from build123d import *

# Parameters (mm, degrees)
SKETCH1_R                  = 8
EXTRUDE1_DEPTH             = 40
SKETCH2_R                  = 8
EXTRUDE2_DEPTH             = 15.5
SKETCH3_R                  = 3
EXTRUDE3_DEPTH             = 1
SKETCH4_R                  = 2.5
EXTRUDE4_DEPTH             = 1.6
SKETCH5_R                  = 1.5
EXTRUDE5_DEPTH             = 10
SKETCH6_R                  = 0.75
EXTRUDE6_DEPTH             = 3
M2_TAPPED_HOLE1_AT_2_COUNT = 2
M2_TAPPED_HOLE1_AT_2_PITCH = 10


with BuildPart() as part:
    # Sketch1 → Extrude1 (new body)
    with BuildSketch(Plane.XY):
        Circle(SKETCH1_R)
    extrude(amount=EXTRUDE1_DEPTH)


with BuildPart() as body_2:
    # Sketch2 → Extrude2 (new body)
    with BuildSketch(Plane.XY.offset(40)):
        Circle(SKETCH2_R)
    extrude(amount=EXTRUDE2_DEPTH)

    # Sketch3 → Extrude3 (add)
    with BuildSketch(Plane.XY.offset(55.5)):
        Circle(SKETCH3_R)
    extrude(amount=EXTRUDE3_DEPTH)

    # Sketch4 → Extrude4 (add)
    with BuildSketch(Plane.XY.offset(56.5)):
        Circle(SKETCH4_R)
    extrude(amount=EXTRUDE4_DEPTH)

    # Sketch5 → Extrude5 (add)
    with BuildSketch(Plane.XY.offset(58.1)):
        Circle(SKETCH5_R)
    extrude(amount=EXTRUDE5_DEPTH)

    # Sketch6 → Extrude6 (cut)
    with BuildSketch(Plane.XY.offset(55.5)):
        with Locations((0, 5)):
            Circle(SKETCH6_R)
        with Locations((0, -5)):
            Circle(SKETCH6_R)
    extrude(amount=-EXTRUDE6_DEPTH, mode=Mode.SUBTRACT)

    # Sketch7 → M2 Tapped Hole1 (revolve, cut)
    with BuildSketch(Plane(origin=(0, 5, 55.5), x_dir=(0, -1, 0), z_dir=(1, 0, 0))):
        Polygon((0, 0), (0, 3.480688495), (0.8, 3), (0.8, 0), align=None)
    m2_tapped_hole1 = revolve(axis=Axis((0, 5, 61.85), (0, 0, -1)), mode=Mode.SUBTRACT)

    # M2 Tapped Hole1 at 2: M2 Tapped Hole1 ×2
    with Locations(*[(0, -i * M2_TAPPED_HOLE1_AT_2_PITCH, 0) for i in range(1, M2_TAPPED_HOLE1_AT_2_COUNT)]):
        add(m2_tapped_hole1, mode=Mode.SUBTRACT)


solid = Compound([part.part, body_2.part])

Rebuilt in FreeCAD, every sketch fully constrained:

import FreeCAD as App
import Part
import Sketcher
Q = App.Units.Quantity

doc = App.newDocument("Part")
body = doc.addObject("PartDesign::Body", "Body")

# Sketch on XY plane
sketch1 = body.newObject("Sketcher::SketchObject", "Sketch")
sketch1.AttachmentSupport = (doc.getObject("XY_Plane"), [""])
sketch1.MapMode = "FlatFace"
sketch1.addGeometry(Part.Circle(App.Vector(0, 0, 0), App.Vector(0, 0, 1), 8), False)
sketch1.addConstraint([
    Sketcher.Constraint("Coincident", 0, 3, -1, 1),
    Sketcher.Constraint("Diameter", 0, 16.0),
])
pad1 = body.newObject("PartDesign::Pad", "Pad")
pad1.Profile = sketch1
pad1.Length = 40
body2 = doc.addObject("PartDesign::Body", "Body001")

# Sketch on XY plane
sketch2 = body2.newObject("Sketcher::SketchObject", "Sketch001")
sketch2.AttachmentSupport = (doc.getObject("XY_Plane001"), [""])
sketch2.MapMode = "FlatFace"
sketch2.AttachmentOffset = App.Placement(App.Vector(0, 0, 40), App.Rotation())
sketch2.addGeometry(Part.Circle(App.Vector(0, 0, 0), App.Vector(0, 0, 1), 8), False)
sketch2.addConstraint([
    Sketcher.Constraint("Coincident", 0, 3, -1, 1),
    Sketcher.Constraint("Diameter", 0, 16.0),
])
pad2 = body2.newObject("PartDesign::Pad", "Pad001")
pad2.Profile = sketch2
pad2.Length = 15.5

# Sketch on XY plane
sketch3 = body2.newObject("Sketcher::SketchObject", "Sketch002")
sketch3.AttachmentSupport = (doc.getObject("XY_Plane001"), [""])
sketch3.MapMode = "FlatFace"
sketch3.AttachmentOffset = App.Placement(App.Vector(0, 0, 55.5), App.Rotation())
sketch3.addGeometry(Part.Circle(App.Vector(0, 0, 0), App.Vector(0, 0, 1), 3), False)
sketch3.addConstraint([
    Sketcher.Constraint("Coincident", 0, 3, -1, 1),
    Sketcher.Constraint("Diameter", 0, 6.0),
])
pad3 = body2.newObject("PartDesign::Pad", "Pad002")
pad3.Profile = sketch3
pad3.Length = 1

# Sketch on XY plane
sketch4 = body2.newObject("Sketcher::SketchObject", "Sketch003")
sketch4.AttachmentSupport = (doc.getObject("XY_Plane001"), [""])
sketch4.MapMode = "FlatFace"
sketch4.AttachmentOffset = App.Placement(App.Vector(0, 0, 56.5), App.Rotation())
sketch4.addGeometry(Part.Circle(App.Vector(0, 0, 0), App.Vector(0, 0, 1), 2.5), False)
sketch4.addConstraint([
    Sketcher.Constraint("Coincident", 0, 3, -1, 1),
    Sketcher.Constraint("Diameter", 0, 5.0),
])
pad4 = body2.newObject("PartDesign::Pad", "Pad003")
pad4.Profile = sketch4
pad4.Length = 1.6

# Sketch on XY plane
sketch5 = body2.newObject("Sketcher::SketchObject", "Sketch004")
sketch5.AttachmentSupport = (doc.getObject("XY_Plane001"), [""])
sketch5.MapMode = "FlatFace"
sketch5.AttachmentOffset = App.Placement(App.Vector(0, 0, 58.1), App.Rotation())
sketch5.addGeometry(Part.Circle(App.Vector(0, 0, 0), App.Vector(0, 0, 1), 1.5), False)
sketch5.addConstraint([
    Sketcher.Constraint("Coincident", 0, 3, -1, 1),
    Sketcher.Constraint("Diameter", 0, 3.0),
])
pad5 = body2.newObject("PartDesign::Pad", "Pad004")
pad5.Profile = sketch5
pad5.Length = 10

# Sketch on XY plane
sketch6 = body2.newObject("Sketcher::SketchObject", "Sketch005")
sketch6.AttachmentSupport = (doc.getObject("XY_Plane001"), [""])
sketch6.MapMode = "FlatFace"
sketch6.AttachmentOffset = App.Placement(App.Vector(0, 0, 55.5), App.Rotation())
sketch6.addGeometry([
    Part.Circle(App.Vector(0, 5, 0), App.Vector(0, 0, 1), 0.8),
    Part.Circle(App.Vector(0, -5, 0), App.Vector(0, 0, 1), 0.8),
], False)
sketch6.addConstraint([
    Sketcher.Constraint("Equal", 0, 1),
    Sketcher.Constraint("Symmetric", 0, 3, 1, 3, -1, 1),
    Sketcher.Constraint("PointOnObject", 0, 3, -2),
    Sketcher.Constraint("Diameter", 0, 1.5),
    Sketcher.Constraint("DistanceY", -1, 1, 0, 3, 5.0),
])
pocket1 = body2.newObject("PartDesign::Pocket", "Pocket")
pocket1.Profile = sketch6
pocket1.Length = 3

# Sketch on YZ plane
sketch7 = body2.newObject("Sketcher::SketchObject", "Sketch006")
sketch7.AttachmentSupport = (doc.getObject("YZ_Plane001"), [""])
sketch7.MapMode = "FlatFace"
sketch7.addGeometry([
    Part.LineSegment(App.Vector(5, 52, 0), App.Vector(5, 55.5, 0)),
    Part.LineSegment(App.Vector(5, 55.5, 0), App.Vector(4.2, 55.5, 0)),
    Part.LineSegment(App.Vector(4.2, 55.5, 0), App.Vector(4.2, 52.5, 0)),
    Part.LineSegment(App.Vector(4.2, 52.5, 0), App.Vector(5, 52, 0)),
], False)
sketch7.addGeometry(Part.LineSegment(App.Vector(5, 55.5, 0), App.Vector(5, 52, 0)), True)  # axis
sketch7.addConstraint([
    Sketcher.Constraint("Coincident", 0, 2, 1, 1),
    Sketcher.Constraint("Coincident", 1, 2, 2, 1),
    Sketcher.Constraint("Coincident", 2, 2, 3, 1),
    Sketcher.Constraint("Coincident", 3, 2, 0, 1),
    Sketcher.Constraint("Vertical", 0),
    Sketcher.Constraint("Horizontal", 1),
    Sketcher.Constraint("Vertical", 2),
    Sketcher.Constraint("Vertical", 4),
    Sketcher.Constraint("Coincident", 4, 1, 0, 2),
    Sketcher.Constraint("Equal", 0, 4),
    Sketcher.Constraint("DistanceY", 2, 2, 2, 1, 3.0),
    Sketcher.Constraint("Angle", 3, Q("-31 deg")),
    Sketcher.Constraint("DistanceX", 1, 2, 1, 1, 0.8),
    Sketcher.Constraint("DistanceX", -1, 1, 0, 2, 5.0),
    Sketcher.Constraint("DistanceY", -1, 1, 0, 2, 55.5),
])
groove = body2.newObject("PartDesign::Groove", "Groove")
groove.Profile = sketch7
groove.ReferenceAxis = (sketch7, ["Axis0"])
groove.Angle = 360
doc.recompute()

linearpattern = body2.newObject("PartDesign::LinearPattern", "LinearPattern")
linearpattern.Originals = [groove]
linearpattern.Direction = (doc.getObject("Y_Axis001"), [""])
linearpattern.Mode = "offset"
linearpattern.Offset = 10
linearpattern.Occurrences = 2
linearpattern.Reversed = True
body2.Tip = linearpattern

doc.recompute()
